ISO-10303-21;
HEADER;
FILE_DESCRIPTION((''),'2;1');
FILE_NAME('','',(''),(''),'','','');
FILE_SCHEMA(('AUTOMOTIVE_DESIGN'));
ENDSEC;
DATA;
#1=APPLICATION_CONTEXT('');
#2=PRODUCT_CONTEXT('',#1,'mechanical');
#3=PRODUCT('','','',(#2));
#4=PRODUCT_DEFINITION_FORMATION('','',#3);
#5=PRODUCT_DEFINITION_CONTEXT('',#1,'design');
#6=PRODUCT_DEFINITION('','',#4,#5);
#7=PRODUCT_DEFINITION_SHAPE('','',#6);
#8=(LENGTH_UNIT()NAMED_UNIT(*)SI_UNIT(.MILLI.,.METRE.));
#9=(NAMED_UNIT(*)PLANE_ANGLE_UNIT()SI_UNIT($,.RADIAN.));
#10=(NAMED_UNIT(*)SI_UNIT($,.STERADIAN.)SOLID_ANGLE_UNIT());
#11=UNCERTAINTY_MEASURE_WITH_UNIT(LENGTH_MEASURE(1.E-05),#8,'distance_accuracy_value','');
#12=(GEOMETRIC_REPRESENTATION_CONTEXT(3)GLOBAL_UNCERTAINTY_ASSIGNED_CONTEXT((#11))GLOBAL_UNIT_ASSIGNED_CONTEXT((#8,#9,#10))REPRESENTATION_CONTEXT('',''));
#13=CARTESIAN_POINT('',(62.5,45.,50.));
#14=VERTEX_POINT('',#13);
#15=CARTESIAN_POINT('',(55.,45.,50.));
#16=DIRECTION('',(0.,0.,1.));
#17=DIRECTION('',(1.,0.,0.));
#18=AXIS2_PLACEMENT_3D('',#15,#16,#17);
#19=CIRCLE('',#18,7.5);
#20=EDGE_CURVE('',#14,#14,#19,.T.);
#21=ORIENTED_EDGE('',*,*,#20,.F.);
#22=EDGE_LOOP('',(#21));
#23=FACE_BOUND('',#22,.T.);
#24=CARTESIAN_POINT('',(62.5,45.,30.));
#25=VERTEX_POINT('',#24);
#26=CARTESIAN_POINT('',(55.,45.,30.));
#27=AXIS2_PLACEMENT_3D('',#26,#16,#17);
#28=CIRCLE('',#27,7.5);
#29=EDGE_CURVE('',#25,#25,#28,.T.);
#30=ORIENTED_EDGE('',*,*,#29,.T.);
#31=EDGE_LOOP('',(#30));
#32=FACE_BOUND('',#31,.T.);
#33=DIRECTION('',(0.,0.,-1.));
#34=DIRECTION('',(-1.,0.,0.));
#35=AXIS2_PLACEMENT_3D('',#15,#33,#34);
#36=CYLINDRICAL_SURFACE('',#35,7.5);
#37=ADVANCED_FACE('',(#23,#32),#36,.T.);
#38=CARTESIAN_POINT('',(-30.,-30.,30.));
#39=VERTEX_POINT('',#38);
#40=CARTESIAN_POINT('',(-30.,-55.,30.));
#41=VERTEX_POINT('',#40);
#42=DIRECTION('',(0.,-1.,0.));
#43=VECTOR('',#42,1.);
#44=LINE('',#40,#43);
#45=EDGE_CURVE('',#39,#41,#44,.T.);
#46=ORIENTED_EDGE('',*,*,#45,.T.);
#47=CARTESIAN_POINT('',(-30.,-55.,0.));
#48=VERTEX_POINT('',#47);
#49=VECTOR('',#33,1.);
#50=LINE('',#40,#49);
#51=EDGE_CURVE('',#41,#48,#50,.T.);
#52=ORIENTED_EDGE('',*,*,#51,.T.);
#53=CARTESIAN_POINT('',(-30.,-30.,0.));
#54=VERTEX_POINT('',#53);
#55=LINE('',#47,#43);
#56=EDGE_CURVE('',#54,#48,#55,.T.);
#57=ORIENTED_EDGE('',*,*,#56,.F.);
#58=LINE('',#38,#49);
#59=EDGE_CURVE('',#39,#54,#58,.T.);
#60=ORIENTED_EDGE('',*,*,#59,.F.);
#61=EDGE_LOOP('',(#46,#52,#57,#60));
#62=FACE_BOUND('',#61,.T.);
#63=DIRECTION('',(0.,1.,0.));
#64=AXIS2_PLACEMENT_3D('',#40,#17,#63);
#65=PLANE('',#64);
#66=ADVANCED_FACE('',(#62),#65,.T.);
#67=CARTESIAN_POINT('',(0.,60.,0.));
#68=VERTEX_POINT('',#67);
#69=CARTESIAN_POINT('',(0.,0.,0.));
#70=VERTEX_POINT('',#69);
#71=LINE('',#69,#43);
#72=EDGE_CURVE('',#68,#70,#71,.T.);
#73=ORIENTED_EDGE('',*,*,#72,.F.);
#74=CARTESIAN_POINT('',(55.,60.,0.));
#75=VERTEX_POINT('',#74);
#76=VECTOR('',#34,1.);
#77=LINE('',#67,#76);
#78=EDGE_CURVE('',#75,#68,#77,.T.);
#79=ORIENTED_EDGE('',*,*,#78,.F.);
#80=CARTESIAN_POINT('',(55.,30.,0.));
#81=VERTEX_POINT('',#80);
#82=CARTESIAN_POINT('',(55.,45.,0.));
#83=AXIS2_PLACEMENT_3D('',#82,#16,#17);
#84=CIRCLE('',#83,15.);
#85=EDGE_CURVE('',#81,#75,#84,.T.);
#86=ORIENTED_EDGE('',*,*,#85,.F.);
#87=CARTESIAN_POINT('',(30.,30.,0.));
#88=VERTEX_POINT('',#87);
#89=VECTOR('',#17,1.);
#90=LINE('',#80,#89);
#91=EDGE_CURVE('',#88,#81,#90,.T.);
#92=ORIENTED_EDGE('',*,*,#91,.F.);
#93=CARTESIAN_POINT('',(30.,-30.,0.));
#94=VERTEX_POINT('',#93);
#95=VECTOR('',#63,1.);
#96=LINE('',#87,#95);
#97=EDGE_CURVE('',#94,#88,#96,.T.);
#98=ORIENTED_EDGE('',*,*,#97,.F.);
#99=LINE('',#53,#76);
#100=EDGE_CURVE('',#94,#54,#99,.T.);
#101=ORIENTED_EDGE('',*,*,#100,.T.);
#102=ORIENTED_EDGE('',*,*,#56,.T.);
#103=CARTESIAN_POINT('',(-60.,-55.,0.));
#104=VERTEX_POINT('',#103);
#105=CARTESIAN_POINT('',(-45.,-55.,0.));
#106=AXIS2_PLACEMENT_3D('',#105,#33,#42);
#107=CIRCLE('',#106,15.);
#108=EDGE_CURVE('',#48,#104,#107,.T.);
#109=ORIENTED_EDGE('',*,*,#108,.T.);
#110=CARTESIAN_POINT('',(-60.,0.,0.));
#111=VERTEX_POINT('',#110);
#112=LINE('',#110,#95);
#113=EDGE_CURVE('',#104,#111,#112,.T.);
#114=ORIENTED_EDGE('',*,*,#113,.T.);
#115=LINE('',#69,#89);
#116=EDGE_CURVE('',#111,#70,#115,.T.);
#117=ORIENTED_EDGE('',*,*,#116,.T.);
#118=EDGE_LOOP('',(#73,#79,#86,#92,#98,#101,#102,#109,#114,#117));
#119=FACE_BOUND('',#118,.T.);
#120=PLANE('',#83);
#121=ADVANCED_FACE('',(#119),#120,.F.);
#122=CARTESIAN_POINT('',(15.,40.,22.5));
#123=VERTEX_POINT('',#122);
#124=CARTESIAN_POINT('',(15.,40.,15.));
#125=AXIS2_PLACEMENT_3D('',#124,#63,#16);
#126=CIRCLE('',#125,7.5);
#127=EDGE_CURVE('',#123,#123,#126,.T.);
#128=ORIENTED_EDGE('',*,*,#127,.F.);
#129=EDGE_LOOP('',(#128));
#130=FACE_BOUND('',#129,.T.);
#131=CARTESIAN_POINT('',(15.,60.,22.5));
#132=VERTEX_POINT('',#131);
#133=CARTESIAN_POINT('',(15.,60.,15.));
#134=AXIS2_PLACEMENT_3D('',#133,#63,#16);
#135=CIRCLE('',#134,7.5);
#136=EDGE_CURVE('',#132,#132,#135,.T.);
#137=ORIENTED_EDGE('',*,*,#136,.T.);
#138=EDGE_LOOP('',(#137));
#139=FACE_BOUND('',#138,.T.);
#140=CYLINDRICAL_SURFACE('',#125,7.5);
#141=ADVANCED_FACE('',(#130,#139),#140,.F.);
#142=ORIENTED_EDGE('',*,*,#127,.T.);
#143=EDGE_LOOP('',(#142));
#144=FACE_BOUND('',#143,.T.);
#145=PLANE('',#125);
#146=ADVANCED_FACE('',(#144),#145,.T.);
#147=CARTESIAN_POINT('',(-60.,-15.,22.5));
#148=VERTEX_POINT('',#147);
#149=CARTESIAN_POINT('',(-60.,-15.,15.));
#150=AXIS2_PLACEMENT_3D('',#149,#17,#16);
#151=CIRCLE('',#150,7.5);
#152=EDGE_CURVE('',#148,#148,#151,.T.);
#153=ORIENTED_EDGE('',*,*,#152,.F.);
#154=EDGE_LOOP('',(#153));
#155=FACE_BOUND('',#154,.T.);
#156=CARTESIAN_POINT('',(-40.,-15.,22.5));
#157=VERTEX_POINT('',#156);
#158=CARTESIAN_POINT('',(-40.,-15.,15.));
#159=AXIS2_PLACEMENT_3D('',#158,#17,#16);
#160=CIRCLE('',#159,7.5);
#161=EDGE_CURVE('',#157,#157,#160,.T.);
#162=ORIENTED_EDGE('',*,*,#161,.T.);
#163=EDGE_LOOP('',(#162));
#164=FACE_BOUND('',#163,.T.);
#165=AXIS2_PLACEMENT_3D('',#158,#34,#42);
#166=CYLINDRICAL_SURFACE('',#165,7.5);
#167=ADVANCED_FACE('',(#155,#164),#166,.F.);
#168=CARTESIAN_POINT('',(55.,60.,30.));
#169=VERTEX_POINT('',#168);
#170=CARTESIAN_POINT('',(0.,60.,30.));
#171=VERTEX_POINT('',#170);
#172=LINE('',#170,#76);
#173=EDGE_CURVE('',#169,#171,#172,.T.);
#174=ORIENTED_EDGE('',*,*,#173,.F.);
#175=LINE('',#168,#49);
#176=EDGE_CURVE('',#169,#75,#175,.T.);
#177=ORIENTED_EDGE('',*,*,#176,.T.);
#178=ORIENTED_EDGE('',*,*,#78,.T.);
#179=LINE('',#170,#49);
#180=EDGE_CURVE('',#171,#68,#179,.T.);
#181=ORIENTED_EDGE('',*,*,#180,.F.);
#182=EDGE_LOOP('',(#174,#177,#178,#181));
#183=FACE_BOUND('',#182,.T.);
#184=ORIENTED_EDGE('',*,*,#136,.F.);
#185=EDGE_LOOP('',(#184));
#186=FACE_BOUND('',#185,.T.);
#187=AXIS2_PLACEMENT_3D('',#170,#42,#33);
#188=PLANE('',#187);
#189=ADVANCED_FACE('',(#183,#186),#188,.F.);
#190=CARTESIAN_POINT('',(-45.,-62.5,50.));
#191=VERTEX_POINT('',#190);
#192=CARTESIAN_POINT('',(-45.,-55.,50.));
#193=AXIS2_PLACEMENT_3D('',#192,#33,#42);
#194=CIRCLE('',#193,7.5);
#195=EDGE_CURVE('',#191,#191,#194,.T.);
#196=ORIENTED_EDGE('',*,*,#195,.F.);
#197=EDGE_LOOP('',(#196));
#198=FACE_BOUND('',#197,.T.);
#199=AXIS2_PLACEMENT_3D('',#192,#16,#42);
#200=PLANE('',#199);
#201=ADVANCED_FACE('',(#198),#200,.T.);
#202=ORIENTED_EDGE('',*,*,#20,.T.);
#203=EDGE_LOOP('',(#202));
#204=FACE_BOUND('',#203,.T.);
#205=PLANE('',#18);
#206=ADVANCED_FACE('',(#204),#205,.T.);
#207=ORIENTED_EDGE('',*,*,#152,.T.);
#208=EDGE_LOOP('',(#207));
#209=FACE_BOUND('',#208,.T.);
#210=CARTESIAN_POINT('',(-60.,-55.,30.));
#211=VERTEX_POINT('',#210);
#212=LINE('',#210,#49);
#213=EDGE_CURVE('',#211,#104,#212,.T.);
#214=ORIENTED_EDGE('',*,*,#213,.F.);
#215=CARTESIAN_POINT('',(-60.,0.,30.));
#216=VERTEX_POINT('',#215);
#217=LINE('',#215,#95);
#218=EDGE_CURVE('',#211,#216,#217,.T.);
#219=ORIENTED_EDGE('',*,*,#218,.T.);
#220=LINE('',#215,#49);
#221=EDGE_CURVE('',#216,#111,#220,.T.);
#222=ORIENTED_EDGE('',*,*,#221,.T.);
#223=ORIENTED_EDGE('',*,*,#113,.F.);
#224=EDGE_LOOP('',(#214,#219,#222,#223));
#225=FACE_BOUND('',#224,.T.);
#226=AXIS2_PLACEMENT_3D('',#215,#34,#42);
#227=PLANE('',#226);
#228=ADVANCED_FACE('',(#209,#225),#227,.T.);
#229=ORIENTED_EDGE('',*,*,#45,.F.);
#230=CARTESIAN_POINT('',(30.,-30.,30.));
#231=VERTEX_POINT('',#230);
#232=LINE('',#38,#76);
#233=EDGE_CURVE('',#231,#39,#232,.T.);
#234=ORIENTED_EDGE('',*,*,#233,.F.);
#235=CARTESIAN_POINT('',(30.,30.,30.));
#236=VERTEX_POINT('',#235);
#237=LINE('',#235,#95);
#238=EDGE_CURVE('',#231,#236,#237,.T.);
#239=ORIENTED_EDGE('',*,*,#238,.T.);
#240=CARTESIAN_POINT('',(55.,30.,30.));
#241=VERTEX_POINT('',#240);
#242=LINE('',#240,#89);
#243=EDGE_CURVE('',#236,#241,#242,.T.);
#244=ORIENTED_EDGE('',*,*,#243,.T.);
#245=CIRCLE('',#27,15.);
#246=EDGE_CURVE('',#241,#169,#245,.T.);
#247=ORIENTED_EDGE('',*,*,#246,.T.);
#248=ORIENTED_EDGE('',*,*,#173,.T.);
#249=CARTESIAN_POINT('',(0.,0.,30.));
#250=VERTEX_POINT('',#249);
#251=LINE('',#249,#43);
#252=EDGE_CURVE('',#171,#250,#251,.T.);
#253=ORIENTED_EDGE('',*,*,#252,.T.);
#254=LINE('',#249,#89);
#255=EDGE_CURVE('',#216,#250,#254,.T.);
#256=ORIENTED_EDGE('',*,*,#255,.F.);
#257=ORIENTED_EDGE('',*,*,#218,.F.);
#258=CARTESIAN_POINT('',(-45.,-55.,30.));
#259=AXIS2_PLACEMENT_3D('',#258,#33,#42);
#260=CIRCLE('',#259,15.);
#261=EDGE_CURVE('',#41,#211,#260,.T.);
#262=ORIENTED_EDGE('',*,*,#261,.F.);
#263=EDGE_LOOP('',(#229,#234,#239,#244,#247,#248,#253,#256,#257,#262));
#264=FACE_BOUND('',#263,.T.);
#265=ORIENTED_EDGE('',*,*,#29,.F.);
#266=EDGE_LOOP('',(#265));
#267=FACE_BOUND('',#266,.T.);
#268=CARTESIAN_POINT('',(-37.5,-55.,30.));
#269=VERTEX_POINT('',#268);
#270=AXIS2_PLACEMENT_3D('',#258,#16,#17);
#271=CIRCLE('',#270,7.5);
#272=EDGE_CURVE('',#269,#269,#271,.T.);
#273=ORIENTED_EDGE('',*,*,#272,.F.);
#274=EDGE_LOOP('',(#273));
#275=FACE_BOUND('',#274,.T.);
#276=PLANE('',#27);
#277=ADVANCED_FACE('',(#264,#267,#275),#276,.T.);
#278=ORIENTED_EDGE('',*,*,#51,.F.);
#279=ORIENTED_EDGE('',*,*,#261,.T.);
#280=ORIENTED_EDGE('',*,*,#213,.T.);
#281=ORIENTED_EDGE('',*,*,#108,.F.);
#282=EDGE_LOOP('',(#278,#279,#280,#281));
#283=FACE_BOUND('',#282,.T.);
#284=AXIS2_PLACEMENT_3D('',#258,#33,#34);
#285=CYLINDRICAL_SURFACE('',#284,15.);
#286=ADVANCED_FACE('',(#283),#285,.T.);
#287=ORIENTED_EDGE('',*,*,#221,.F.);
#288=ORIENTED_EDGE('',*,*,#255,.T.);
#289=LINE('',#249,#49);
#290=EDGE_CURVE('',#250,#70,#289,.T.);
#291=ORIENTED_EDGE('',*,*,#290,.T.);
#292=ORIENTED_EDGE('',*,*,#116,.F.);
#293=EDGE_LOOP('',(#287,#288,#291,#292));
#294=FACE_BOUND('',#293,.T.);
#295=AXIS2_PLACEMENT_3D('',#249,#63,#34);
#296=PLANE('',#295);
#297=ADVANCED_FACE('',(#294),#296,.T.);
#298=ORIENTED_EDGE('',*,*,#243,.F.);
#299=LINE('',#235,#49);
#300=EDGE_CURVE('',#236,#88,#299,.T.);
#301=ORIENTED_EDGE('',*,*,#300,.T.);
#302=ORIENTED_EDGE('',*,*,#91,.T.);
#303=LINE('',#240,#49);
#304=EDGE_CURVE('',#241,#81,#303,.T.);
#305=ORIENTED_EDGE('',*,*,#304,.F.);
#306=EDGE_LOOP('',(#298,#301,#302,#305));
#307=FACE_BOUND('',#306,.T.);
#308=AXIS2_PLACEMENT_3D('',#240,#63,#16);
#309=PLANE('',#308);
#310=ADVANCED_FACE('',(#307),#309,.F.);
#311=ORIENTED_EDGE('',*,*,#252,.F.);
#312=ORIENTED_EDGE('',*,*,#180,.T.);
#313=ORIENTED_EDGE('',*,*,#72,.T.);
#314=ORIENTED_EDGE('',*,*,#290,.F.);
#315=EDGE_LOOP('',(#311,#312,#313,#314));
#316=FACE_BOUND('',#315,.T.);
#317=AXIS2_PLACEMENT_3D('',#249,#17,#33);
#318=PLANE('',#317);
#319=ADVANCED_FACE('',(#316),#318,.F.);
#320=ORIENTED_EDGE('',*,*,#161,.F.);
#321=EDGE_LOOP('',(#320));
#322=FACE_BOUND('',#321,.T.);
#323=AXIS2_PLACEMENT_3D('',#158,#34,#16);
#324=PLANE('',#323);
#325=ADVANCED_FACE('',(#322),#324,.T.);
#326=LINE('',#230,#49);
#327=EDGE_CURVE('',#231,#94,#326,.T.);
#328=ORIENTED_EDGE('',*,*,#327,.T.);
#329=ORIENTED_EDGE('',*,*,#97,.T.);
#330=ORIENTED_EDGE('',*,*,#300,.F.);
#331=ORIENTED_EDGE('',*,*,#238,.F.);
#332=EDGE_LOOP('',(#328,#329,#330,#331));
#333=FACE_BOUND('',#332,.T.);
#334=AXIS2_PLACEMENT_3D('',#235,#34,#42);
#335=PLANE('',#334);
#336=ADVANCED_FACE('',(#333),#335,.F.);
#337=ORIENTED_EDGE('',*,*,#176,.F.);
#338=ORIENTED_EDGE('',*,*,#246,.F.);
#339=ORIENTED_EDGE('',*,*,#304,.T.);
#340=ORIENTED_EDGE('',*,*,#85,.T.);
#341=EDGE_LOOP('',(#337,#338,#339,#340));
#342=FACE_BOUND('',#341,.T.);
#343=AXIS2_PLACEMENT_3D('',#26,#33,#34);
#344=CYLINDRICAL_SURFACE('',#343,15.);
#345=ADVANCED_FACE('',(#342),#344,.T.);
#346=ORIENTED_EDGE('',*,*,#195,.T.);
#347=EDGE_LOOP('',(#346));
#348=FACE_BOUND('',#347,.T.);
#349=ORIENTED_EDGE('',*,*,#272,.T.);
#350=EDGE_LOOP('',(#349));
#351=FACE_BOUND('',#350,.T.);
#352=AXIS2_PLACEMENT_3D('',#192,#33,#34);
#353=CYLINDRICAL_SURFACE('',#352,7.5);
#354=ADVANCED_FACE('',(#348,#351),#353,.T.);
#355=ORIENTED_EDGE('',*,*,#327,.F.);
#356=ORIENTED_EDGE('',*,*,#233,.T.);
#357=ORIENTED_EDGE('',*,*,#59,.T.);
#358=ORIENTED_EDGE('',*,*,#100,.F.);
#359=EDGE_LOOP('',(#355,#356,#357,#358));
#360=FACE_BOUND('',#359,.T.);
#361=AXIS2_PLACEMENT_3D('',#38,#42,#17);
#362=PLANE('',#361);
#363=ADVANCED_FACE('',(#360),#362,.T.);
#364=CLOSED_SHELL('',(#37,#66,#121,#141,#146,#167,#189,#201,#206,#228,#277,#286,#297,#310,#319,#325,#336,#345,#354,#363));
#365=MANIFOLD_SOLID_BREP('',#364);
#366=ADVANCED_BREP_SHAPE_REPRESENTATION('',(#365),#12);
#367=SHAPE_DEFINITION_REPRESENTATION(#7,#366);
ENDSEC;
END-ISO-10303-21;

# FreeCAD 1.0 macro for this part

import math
import FreeCAD as App
import Part
import Sketcher
Q = App.Units.Quantity

doc = App.newDocument("Part")
body = doc.addObject("PartDesign::Body", "Body")

sketch1 = doc.addObject("Sketcher::SketchObject", "Sketch")
body.addObject(sketch1)
sketch1.AttachmentSupport = (doc.XY_Plane, [""])
sketch1.MapMode = "FlatFace"
sketch1.addGeometry([
    Part.LineSegment(App.Vector(0, 60, 0), App.Vector(0, 0, 0)),
    Part.LineSegment(App.Vector(0, 0, 0), App.Vector(30, -30, 0)),
    Part.LineSegment(App.Vector(30, -30, 0), App.Vector(30, 30, 0)),
    Part.LineSegment(App.Vector(30, 30, 0), App.Vector(55, 30, 0)),
    Part.ArcOfCircle(Part.Circle(App.Vector(55, 45, 0), App.Vector(0, 0, 1), 15), math.radians(-90), math.radians(90)),
    Part.LineSegment(App.Vector(55, 60, 0), App.Vector(0, 60, 0)),
], False)
sketch1.addConstraint([
    Sketcher.Constraint("Coincident", 0, 2, 1, 1),
    Sketcher.Constraint("Coincident", 1, 2, 2, 1),
    Sketcher.Constraint("Coincident", 2, 2, 3, 1),
    Sketcher.Constraint("Tangent", 3, 2, 4, 1),
    Sketcher.Constraint("Tangent", 4, 2, 5, 1),
    Sketcher.Constraint("Coincident", 5, 2, 0, 1),
    Sketcher.Constraint("Vertical", 0),
    Sketcher.Constraint("Vertical", 2),
    Sketcher.Constraint("Horizontal", 3),
    Sketcher.Constraint("Horizontal", 5),
    Sketcher.Constraint("Coincident", 0, 2, -1, 1),
    Sketcher.Constraint("Equal", 0, 2),
    Sketcher.Constraint("Radius", 4, Q("15 mm")),
    Sketcher.Constraint("DistanceX", 3, 1, 3, 2, Q("25 mm")),
    Sketcher.Constraint("DistanceX", 5, 2, 5, 1, Q("55 mm")),
    Sketcher.Constraint("DistanceY", 0, 2, 0, 1, Q("60 mm")),
])
pad1 = doc.addObject("PartDesign::Pad", "Pad")
body.addObject(pad1)
pad1.Profile = sketch1
pad1.Length = 30

sketch2 = doc.addObject("Sketcher::SketchObject", "Sketch001")
body.addObject(sketch2)
sketch2.AttachmentSupport = (doc.XY_Plane, [""])
sketch2.MapMode = "FlatFace"
sketch2.AttachmentOffset = App.Placement(App.Vector(0, 0, 30), App.Rotation())
sketch2.addGeometry(Part.Circle(App.Vector(55, 45, 0), App.Vector(0, 0, 1), 7.5), False)
sketch2.addConstraint([
    Sketcher.Constraint("Diameter", 0, Q("15 mm")),
    Sketcher.Constraint("DistanceX", -1, 1, 0, 3, Q("55 mm")),
    Sketcher.Constraint("DistanceY", -1, 1, 0, 3, Q("45 mm")),
])
pad2 = doc.addObject("PartDesign::Pad", "Pad001")
body.addObject(pad2)
pad2.Profile = sketch2
pad2.Length = 20

sketch3 = doc.addObject("Sketcher::SketchObject", "Sketch002")
body.addObject(sketch3)
sketch3.AttachmentSupport = (doc.XZ_Plane, [""])
sketch3.MapMode = "FlatFace"
sketch3.AttachmentOffset = App.Placement(App.Vector(0, 0, -60), App.Rotation())
sketch3.addGeometry(Part.Circle(App.Vector(15, 15, 0), App.Vector(0, 0, 1), 7.5), False)
sketch3.addConstraint([
    Sketcher.Constraint("Diameter", 0, Q("15 mm")),
    Sketcher.Constraint("DistanceX", -1, 1, 0, 3, Q("15 mm")),
    Sketcher.Constraint("DistanceY", -1, 1, 0, 3, Q("15 mm")),
])
pocket1 = doc.addObject("PartDesign::Pocket", "Pocket")
body.addObject(pocket1)
pocket1.Profile = sketch3
pocket1.Length = 20
pocket1.Reversed = True
doc.recompute()

datumplane = doc.addObject("PartDesign::Plane", "DatumPlane")
body.addObject(datumplane)
datumplane.Placement = App.Placement(App.Vector(0, 0, 0), App.Rotation(App.Vector(0.707106781, -0.707106781, 0), App.Vector(0, 0, -1), App.Vector(0.707106781, 0.707106781, 0), "ZXY"))
mirrored = doc.addObject("PartDesign::Mirrored", "Mirrored")
body.addObject(mirrored)
mirrored.Originals = [pad1, pad2, pocket1]
mirrored.MirrorPlane = (datumplane, [""])
body.Tip = mirrored

doc.recompute()
